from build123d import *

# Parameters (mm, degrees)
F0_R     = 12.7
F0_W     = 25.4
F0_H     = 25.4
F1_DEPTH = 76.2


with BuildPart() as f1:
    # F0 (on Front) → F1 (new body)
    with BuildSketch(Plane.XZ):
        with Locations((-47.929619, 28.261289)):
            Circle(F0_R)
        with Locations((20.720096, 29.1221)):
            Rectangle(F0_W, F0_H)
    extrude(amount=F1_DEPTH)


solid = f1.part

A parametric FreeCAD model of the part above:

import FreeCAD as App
import Part
import Sketcher

V = App.Vector
Q = App.Units.Quantity


def add_polygon(sketch, points):
    """Adds a closed chain of lines whose ends are joined by coincident constraints."""
    first, n = sketch.GeometryCount, len(points)
    for a, b in zip(points, points[1:] + points[:1]):
        sketch.addGeometry(Part.LineSegment(App.Vector(*a, 0), App.Vector(*b, 0)), False)
    for i in range(n):
        sketch.addConstraint(Sketcher.Constraint("Coincident", first + i, 2, first + (i + 1) % n, 1))

doc = App.newDocument("Part")
body = doc.addObject("PartDesign::Body", "Body")
body.AllowCompound = True

# Sketch on XZ plane
sketch1 = body.newObject("Sketcher::SketchObject", "Sketch")
sketch1.AttachmentSupport = (doc.getObject("XZ_Plane"), [""])
sketch1.MapMode = "FlatFace"
sketch1.addGeometry(Part.Circle(V(-48, 28, 0), V(0, 0, 1), 13), False)  # 0
add_polygon(sketch1, [(8, 42), (8, 16), (33, 16), (33, 42)])  # lines 1-4
sketch1.addConstraint([
    Sketcher.Constraint("Vertical", 1),
    Sketcher.Constraint("Horizontal", 2),
    Sketcher.Constraint("Vertical", 3),
    Sketcher.Constraint("Horizontal", 4),
    Sketcher.Constraint("Equal", 4, 1),
    Sketcher.Constraint("Diameter", 0, Q("1 in")),
    Sketcher.Constraint("DistanceX", 2, 1, 2, 2, Q("1 in")),
    Sketcher.Constraint("DistanceY", -1, 1, 1, 2, Q("16.4221 mm")),
    Sketcher.Constraint("DistanceX", 0, 3, -1, 1, Q("47.929619 mm")),
    Sketcher.Constraint("DistanceY", -1, 1, 0, 3, Q("28.261289 mm")),
    Sketcher.Constraint("DistanceX", -1, 1, 1, 2, Q("8.020096 mm")),
])
pad1 = body.newObject("PartDesign::Pad", "Pad")
pad1.Profile = sketch1
pad1.Length = Q("3 in")

doc.recompute()
